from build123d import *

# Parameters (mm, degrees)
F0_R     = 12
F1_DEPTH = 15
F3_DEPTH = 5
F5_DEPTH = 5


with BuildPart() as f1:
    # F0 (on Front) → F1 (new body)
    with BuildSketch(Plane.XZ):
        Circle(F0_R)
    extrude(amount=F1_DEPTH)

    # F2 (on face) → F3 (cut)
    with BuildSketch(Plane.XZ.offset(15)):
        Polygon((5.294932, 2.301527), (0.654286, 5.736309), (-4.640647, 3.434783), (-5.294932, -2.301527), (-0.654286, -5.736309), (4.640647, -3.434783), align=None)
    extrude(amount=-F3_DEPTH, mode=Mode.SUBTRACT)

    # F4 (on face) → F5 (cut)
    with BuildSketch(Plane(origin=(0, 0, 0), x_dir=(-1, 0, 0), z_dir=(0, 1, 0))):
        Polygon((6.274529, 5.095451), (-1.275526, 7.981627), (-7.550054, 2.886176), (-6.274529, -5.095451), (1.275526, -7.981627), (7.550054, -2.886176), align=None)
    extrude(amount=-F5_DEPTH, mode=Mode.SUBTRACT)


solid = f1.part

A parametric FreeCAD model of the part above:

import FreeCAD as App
import Part
import Sketcher


def add_polygon(sketch, points):
    """Adds a closed chain of lines whose ends are joined by coincident constraints."""
    first, n = sketch.GeometryCount, len(points)
    for a, b in zip(points, points[1:] + points[:1]):
        sketch.addGeometry(Part.LineSegment(App.Vector(*a, 0), App.Vector(*b, 0)), False)
    for i in range(n):
        sketch.addConstraint(Sketcher.Constraint("Coincident", first + i, 2, first + (i + 1) % n, 1))

doc = App.newDocument("Part")
body = doc.addObject("PartDesign::Body", "Body")

sketch1 = doc.addObject("Sketcher::SketchObject", "Sketch")
body.addObject(sketch1)
sketch1.AttachmentSupport = (doc.XZ_Plane, [""])
sketch1.MapMode = "FlatFace"
sketch1.addGeometry(Part.Circle(App.Vector(0, 0, 0), App.Vector(0, 0, 1), 12), False)
sketch1.addConstraint(Sketcher.Constraint("Coincident", 0, 3, -1, 1))
sketch1.addConstraint(Sketcher.Constraint("Diameter", 0, 24.0))
pad1 = doc.addObject("PartDesign::Pad", "Pad")
body.addObject(pad1)
pad1.Profile = sketch1
pad1.Length = 15

sketch2 = doc.addObject("Sketcher::SketchObject", "Sketch001")
body.addObject(sketch2)
sketch2.AttachmentSupport = (doc.XZ_Plane, [""])
sketch2.MapMode = "FlatFace"
sketch2.AttachmentOffset = App.Placement(App.Vector(0, 0, 15), App.Rotation())
add_polygon(sketch2, [(5, 2), (1, 6), (-5, 3), (-5, -2), (-1, -6), (5, -3)])
sketch2.addConstraint(Sketcher.Constraint("Symmetric", 0, 2, 3, 2, -1, 1))
sketch2.addConstraint(Sketcher.Constraint("Symmetric", 1, 2, 4, 2, -1, 1))
sketch2.addConstraint(Sketcher.Constraint("Symmetric", 2, 2, 5, 2, -1, 1))
sketch2.addConstraint(Sketcher.Constraint("Equal", 0, 1))
sketch2.addConstraint(Sketcher.Constraint("Equal", 1, 2))
sketch2.addConstraint(Sketcher.Constraint("Distance", 0, 5.773502))
sketch2.addConstraint(Sketcher.Constraint("DistanceY", -1, 1, 0, 2, 5.736309))
sketch2.addConstraint(Sketcher.Constraint("DistanceY", 2, 2, 1, 2, 5.73631))
sketch2.addConstraint(Sketcher.Constraint("DistanceX", 1, 2, 3, 2, 3.986361))
pocket1 = doc.addObject("PartDesign::Pocket", "Pocket")
body.addObject(pocket1)
pocket1.Profile = sketch2
pocket1.Length = 5

sketch3 = doc.addObject("Sketcher::SketchObject", "Sketch002")
body.addObject(sketch3)
sketch3.AttachmentSupport = (doc.XZ_Plane, [""])
sketch3.MapMode = "FlatFace"
add_polygon(sketch3, [(-6, 5), (1, 8), (8, 3), (6, -5), (-1, -8), (-8, -3)])
sketch3.addConstraint(Sketcher.Constraint("Symmetric", 0, 2, 3, 2, -1, 1))
sketch3.addConstraint(Sketcher.Constraint("Symmetric", 1, 2, 4, 2, -1, 1))
sketch3.addConstraint(Sketcher.Constraint("Symmetric", 2, 2, 5, 2, -1, 1))
sketch3.addConstraint(Sketcher.Constraint("Equal", 0, 1))
sketch3.addConstraint(Sketcher.Constraint("Equal", 1, 2))
sketch3.addConstraint(Sketcher.Constraint("DistanceX", -1, 1, 2, 2, 6.274529))
sketch3.addConstraint(Sketcher.Constraint("DistanceY", 2, 2, -1, 1, 5.095451))
sketch3.addConstraint(Sketcher.Constraint("DistanceY", 1, 2, 0, 2, 5.095451))
sketch3.addConstraint(Sketcher.Constraint("DistanceX", 3, 2, 1, 2, 8.82558))
pocket2 = doc.addObject("PartDesign::Pocket", "Pocket001")
body.addObject(pocket2)
pocket2.Profile = sketch3
pocket2.Length = 5
pocket2.Reversed = True

doc.recompute()
